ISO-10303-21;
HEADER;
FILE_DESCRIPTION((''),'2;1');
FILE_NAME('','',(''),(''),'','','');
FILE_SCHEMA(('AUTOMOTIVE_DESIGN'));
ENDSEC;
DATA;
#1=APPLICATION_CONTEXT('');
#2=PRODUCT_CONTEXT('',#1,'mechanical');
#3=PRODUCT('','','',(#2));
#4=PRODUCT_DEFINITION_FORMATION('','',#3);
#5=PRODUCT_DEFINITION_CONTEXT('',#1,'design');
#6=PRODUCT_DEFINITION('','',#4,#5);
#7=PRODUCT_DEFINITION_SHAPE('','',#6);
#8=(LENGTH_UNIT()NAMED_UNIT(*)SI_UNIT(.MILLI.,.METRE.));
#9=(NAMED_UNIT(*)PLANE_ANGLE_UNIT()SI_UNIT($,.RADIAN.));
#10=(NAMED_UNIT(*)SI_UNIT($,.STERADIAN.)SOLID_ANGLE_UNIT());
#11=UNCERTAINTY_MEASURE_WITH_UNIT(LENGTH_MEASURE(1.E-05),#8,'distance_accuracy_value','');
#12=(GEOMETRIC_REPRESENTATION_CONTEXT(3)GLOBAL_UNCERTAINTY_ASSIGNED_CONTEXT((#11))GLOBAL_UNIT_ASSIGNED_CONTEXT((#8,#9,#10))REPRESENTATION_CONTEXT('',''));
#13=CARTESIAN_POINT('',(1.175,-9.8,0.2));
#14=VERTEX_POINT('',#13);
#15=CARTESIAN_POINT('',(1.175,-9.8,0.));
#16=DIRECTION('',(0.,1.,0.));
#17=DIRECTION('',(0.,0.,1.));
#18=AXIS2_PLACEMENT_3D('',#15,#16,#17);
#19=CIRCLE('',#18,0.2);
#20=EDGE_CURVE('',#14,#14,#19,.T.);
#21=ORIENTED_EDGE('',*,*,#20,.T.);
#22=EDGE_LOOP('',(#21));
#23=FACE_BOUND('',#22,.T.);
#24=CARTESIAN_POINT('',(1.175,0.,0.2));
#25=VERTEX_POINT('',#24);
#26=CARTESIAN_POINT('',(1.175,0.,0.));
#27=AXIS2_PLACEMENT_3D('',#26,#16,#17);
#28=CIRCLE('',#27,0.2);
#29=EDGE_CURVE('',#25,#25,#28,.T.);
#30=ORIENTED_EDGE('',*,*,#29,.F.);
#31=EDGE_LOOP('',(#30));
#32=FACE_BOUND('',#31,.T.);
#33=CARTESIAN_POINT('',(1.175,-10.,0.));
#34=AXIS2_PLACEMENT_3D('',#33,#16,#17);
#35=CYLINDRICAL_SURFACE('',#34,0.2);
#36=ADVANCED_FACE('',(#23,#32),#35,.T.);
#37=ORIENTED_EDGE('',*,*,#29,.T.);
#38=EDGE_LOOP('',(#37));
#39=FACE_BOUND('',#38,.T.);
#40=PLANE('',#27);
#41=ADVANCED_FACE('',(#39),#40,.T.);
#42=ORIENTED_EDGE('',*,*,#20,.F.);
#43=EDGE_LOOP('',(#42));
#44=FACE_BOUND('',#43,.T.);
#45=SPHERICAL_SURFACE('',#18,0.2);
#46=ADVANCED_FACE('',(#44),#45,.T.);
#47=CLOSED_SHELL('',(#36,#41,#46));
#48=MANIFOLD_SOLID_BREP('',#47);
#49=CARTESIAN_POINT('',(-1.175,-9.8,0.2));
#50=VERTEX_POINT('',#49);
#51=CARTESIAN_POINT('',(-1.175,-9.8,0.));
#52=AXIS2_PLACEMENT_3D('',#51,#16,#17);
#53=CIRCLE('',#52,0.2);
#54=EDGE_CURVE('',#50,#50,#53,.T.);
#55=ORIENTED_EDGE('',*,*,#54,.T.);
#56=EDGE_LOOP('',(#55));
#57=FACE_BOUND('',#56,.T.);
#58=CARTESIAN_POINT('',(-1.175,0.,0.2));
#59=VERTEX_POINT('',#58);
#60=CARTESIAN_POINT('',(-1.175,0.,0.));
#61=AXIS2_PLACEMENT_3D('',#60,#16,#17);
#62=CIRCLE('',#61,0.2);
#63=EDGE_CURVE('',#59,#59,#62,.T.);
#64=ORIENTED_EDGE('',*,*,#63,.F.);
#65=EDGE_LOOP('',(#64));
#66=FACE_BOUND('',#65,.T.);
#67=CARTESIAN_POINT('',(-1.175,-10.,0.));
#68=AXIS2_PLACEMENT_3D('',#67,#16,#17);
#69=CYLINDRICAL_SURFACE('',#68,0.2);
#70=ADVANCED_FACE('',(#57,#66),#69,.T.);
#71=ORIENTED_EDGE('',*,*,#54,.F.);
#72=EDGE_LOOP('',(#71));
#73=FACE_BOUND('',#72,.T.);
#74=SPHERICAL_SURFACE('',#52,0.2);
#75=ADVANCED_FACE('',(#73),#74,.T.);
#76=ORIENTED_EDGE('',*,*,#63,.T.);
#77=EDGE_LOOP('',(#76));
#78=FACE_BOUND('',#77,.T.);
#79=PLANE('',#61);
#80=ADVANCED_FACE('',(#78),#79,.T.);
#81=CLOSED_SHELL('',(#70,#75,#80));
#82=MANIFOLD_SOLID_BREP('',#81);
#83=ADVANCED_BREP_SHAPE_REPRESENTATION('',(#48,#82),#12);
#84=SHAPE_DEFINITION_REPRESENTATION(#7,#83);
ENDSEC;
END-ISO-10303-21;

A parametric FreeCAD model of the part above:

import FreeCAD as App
import Part
import Sketcher


def edges_at(feature, points):
    """Names of the edges that pass closest to the given points."""
    edges = feature.Shape.Edges
    near = lambda p: min(range(len(edges)), key=lambda i: edges[i].distToShape(Part.Vertex(*p))[0])
    return sorted({f"Edge{near(p) + 1}" for p in points})

doc = App.newDocument("Part")
body = doc.addObject("PartDesign::Body", "Body")

# Sketch on XZ plane
sketch1 = doc.addObject("Sketcher::SketchObject", "Sketch")
body.addObject(sketch1)
sketch1.AttachmentSupport = (doc.XZ_Plane, [""])
sketch1.MapMode = "FlatFace"
sketch1.addGeometry(Part.Circle(App.Vector(1.18, 0, 0), App.Vector(0, 0, 1), 0.2), False)
sketch1.addConstraint([
    Sketcher.Constraint("PointOnObject", 0, 3, -1),
    Sketcher.Constraint("Diameter", 0, 0.4),
    Sketcher.Constraint("DistanceX", -1, 1, 0, 3, 1.175),
])
pad1 = doc.addObject("PartDesign::Pad", "Pad")
body.addObject(pad1)
pad1.Profile = sketch1
pad1.Length = 10
doc.recompute()

fillet = doc.addObject("PartDesign::Fillet", "Fillet")
body.addObject(fillet)
fillet.Base = (pad1, edges_at(pad1, [(0.975, -10, 0)]))
fillet.Radius = 0.2
body2 = doc.addObject("PartDesign::Body", "Body001")

# Sketch on XZ plane
sketch2 = doc.addObject("Sketcher::SketchObject", "Sketch001")
body2.addObject(sketch2)
sketch2.AttachmentSupport = (doc.getObject("XZ_Plane001"), [""])
sketch2.MapMode = "FlatFace"
sketch2.addGeometry(Part.Circle(App.Vector(-1.18, 0, 0), App.Vector(0, 0, 1), 0.2), False)
sketch2.addConstraint([
    Sketcher.Constraint("PointOnObject", 0, 3, -1),
    Sketcher.Constraint("Diameter", 0, 0.4),
    Sketcher.Constraint("DistanceX", 0, 3, -1, 1, 1.175),
])
pad2 = doc.addObject("PartDesign::Pad", "Pad001")
body2.addObject(pad2)
pad2.Profile = sketch2
pad2.Length = 10
doc.recompute()

fillet2 = doc.addObject("PartDesign::Fillet", "Fillet001")
body2.addObject(fillet2)
fillet2.Base = (pad2, edges_at(pad2, [(-1.375, -10, 0)]))
fillet2.Radius = 0.2

doc.recompute()
